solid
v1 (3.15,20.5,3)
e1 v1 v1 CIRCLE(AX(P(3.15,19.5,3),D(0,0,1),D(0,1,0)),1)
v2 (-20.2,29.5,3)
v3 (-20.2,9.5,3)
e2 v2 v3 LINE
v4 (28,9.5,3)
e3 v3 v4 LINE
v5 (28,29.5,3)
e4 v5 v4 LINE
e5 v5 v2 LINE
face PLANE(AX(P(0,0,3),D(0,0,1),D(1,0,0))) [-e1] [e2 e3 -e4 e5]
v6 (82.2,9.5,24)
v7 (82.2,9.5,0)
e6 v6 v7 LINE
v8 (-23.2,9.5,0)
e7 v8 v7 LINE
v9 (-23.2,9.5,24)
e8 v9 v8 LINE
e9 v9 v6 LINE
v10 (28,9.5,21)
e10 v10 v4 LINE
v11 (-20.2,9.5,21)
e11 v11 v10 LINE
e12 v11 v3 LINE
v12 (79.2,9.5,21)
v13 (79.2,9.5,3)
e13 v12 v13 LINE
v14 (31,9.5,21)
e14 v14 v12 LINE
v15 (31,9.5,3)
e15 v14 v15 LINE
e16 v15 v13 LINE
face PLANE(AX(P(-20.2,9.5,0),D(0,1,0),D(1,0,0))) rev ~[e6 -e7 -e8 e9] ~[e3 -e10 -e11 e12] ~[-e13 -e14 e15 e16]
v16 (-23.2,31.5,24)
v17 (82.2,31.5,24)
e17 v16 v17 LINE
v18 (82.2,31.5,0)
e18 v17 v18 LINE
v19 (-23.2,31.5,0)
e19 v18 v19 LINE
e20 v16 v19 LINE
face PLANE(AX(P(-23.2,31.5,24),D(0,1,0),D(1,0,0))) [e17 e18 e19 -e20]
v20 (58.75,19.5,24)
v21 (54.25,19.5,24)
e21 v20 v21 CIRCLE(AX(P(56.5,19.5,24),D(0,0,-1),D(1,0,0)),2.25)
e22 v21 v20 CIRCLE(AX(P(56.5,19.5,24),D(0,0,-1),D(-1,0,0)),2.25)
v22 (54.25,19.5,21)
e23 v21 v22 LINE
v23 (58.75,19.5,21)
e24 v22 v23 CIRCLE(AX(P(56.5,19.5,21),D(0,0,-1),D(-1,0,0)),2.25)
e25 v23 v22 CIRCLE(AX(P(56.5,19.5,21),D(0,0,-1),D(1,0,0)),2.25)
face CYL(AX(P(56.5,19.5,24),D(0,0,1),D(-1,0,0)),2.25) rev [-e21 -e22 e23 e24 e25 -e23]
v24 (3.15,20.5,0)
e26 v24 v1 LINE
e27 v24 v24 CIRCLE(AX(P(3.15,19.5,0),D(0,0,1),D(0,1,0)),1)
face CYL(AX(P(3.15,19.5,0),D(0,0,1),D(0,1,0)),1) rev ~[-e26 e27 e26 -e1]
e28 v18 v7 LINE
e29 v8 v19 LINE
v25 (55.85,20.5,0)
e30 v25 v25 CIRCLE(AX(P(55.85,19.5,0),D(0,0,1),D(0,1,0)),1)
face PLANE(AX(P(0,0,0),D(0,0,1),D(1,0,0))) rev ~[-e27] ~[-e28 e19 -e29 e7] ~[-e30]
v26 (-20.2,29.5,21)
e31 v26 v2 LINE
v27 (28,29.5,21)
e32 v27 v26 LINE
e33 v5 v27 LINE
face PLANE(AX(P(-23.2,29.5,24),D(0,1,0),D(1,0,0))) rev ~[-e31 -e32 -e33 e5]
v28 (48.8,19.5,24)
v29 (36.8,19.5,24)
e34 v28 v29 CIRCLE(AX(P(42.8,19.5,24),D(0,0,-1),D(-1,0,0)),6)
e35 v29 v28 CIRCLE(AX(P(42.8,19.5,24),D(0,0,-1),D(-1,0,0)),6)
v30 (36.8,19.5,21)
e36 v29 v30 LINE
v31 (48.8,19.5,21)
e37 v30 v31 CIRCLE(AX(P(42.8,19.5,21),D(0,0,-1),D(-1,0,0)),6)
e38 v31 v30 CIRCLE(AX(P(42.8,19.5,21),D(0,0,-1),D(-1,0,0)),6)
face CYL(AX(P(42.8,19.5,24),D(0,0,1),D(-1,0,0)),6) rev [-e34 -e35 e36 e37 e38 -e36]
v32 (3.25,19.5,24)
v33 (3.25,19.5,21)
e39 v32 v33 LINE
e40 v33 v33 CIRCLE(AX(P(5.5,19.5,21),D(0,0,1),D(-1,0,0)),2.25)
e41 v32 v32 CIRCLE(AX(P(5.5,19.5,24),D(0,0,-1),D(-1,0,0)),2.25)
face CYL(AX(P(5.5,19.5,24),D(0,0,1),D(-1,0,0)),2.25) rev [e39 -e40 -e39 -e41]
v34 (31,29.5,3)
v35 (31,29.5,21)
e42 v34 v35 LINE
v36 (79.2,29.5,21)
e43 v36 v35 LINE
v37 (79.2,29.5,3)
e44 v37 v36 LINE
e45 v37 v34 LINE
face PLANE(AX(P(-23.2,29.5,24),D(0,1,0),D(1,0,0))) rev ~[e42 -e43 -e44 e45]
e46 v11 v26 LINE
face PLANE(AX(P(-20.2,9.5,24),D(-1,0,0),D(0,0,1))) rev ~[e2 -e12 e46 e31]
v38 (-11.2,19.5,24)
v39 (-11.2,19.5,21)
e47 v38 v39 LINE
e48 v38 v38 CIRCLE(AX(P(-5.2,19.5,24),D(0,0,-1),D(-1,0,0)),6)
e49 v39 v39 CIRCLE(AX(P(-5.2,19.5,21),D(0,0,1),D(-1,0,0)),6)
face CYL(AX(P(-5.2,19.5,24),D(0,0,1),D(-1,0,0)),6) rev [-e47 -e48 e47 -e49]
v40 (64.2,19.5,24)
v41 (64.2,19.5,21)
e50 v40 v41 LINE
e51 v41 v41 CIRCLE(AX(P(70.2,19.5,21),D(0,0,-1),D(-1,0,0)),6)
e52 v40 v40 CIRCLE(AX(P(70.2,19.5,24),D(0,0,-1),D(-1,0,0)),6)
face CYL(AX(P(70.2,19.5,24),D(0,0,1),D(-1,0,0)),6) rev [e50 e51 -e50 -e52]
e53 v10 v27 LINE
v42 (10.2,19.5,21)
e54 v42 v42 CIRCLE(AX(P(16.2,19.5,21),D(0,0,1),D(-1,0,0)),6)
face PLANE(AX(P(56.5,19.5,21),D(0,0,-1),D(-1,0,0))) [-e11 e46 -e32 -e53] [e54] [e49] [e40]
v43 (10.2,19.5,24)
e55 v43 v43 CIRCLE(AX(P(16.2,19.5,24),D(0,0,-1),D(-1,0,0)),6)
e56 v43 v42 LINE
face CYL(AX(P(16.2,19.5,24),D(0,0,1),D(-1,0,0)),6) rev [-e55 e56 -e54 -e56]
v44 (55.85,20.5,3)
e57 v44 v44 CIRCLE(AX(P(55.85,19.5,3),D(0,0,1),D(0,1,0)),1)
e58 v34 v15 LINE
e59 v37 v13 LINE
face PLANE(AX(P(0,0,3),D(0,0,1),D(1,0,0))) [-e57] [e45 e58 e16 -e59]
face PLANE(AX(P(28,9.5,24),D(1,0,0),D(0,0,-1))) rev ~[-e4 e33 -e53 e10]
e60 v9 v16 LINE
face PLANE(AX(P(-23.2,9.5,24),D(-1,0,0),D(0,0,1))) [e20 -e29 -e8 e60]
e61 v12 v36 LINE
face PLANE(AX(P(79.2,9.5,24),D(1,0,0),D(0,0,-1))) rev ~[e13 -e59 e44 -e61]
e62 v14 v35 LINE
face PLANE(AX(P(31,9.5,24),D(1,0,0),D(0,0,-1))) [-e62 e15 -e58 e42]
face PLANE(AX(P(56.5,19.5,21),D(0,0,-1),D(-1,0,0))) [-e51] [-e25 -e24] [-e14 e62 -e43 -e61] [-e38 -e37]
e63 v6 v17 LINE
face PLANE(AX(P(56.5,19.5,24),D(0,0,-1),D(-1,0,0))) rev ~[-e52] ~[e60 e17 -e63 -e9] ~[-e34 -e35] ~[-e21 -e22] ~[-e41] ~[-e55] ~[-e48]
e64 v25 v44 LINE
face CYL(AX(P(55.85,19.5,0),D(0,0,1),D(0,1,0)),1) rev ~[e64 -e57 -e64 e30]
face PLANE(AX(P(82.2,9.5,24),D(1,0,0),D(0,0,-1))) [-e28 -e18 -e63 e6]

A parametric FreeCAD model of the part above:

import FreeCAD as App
import Part
import Sketcher

V = App.Vector

doc = App.newDocument("Part")
body = doc.addObject("PartDesign::Body", "Body")

sketch1 = body.newObject("Sketcher::SketchObject", "Sketch")
sketch1.AttachmentSupport = (doc.getObject("XY_Plane"), [""])
sketch1.MapMode = "FlatFace"
sketch1.AttachmentOffset = App.Placement(V(0, 0, 24), App.Rotation())
sketch1.addGeometry(Part.LineSegment(V(82.2, 9.5, 0), V(-23.2, 9.5, 0)), False)
sketch1.addGeometry(Part.LineSegment(V(-23.2, 9.5, 0), V(-23.2, 29.5, 0)), False)
sketch1.addGeometry(Part.LineSegment(V(-23.2, 29.5, 0), V(82.2, 29.5, 0)), False)
sketch1.addGeometry(Part.LineSegment(V(82.2, 29.5, 0), V(82.2, 9.5, 0)), False)
sketch1.addGeometry(Part.Circle(V(70.2, 19.5, 0), V(0, 0, 1), 6), False)
sketch1.addGeometry(Part.Circle(V(56.5, 19.5, 0), V(0, 0, 1), 2.2), False)
sketch1.addGeometry(Part.Circle(V(42.8, 19.5, 0), V(0, 0, 1), 6), False)
sketch1.addGeometry(Part.Circle(V(16.2, 19.5, 0), V(0, 0, 1), 6), False)
sketch1.addGeometry(Part.Circle(V(5.5, 19.5, 0), V(0, 0, 1), 2.2), False)
sketch1.addGeometry(Part.Circle(V(-5.2, 19.5, 0), V(0, 0, 1), 6), False)
sketch1.addConstraint(Sketcher.Constraint("Coincident", 0, 2, 1, 1))
sketch1.addConstraint(Sketcher.Constraint("Coincident", 1, 2, 2, 1))
sketch1.addConstraint(Sketcher.Constraint("Coincident", 2, 2, 3, 1))
sketch1.addConstraint(Sketcher.Constraint("Coincident", 3, 2, 0, 1))
sketch1.addConstraint(Sketcher.Constraint("Horizontal", 0))
sketch1.addConstraint(Sketcher.Constraint("Vertical", 1))
sketch1.addConstraint(Sketcher.Constraint("Horizontal", 2))
sketch1.addConstraint(Sketcher.Constraint("Vertical", 3))
sketch1.addConstraint(Sketcher.Constraint("Equal", 4, 6))
sketch1.addConstraint(Sketcher.Constraint("Equal", 6, 7))
sketch1.addConstraint(Sketcher.Constraint("Equal", 5, 8))
sketch1.addConstraint(Sketcher.Constraint("Equal", 7, 9))
sketch1.addConstraint(Sketcher.Constraint("Horizontal", 4, 3, 5, 3))
sketch1.addConstraint(Sketcher.Constraint("Horizontal", 5, 3, 6, 3))
sketch1.addConstraint(Sketcher.Constraint("Horizontal", 6, 3, 7, 3))
sketch1.addConstraint(Sketcher.Constraint("Horizontal", 7, 3, 8, 3))
sketch1.addConstraint(Sketcher.Constraint("Horizontal", 8, 3, 9, 3))
sketch1.addConstraint(Sketcher.Constraint("Diameter", 4, 12.0))
sketch1.addConstraint(Sketcher.Constraint("Diameter", 5, 4.5))
sketch1.addConstraint(Sketcher.Constraint("DistanceY", 1, 1, 1, 2, 20.0))
sketch1.addConstraint(Sketcher.Constraint("DistanceY", 0, 2, 9, 3, 10.0))
sketch1.addConstraint(Sketcher.Constraint("DistanceX", 4, 3, 2, 2, 12.0))
sketch1.addConstraint(Sketcher.Constraint("DistanceX", 0, 2, 0, 1, 105.4))
sketch1.addConstraint(Sketcher.Constraint("DistanceX", 7, 3, 4, 3, 54.0))
sketch1.addConstraint(Sketcher.Constraint("DistanceX", 8, 3, 5, 3, 51.0))
sketch1.addConstraint(Sketcher.Constraint("DistanceX", 9, 3, 6, 3, 48.0))
sketch1.addConstraint(Sketcher.Constraint("DistanceX", 0, 2, 9, 3, 18.0))
sketch1.addConstraint(Sketcher.Constraint("DistanceX", -1, 1, 4, 3, 70.2))
sketch1.addConstraint(Sketcher.Constraint("DistanceY", -1, 1, 4, 3, 19.5))
sketch1.addConstraint(Sketcher.Constraint("DistanceX", -1, 1, 5, 3, 56.5))
pad1 = body.newObject("PartDesign::Pad", "Pad")
pad1.Profile = sketch1
pad1.Length = 3
pad1.Reversed = True

sketch2 = body.newObject("Sketcher::SketchObject", "Sketch001")
sketch2.AttachmentSupport = (doc.getObject("YZ_Plane"), [""])
sketch2.MapMode = "FlatFace"
sketch2.AttachmentOffset = App.Placement(V(0, 0, -23.2), App.Rotation())
sketch2.addGeometry(Part.LineSegment(V(10, 0, 0), V(10, 21, 0)), False)
sketch2.addGeometry(Part.LineSegment(V(10, 21, 0), V(30, 21, 0)), False)
sketch2.addGeometry(Part.LineSegment(V(30, 21, 0), V(30, 0, 0)), False)
sketch2.addGeometry(Part.LineSegment(V(30, 0, 0), V(10, 0, 0)), False)
sketch2.addConstraint(Sketcher.Constraint("Coincident", 0, 2, 1, 1))
sketch2.addConstraint(Sketcher.Constraint("Coincident", 1, 2, 2, 1))
sketch2.addConstraint(Sketcher.Constraint("Coincident", 2, 2, 3, 1))
sketch2.addConstraint(Sketcher.Constraint("Coincident", 3, 2, 0, 1))
sketch2.addConstraint(Sketcher.Constraint("Vertical", 0))
sketch2.addConstraint(Sketcher.Constraint("Horizontal", 1))
sketch2.addConstraint(Sketcher.Constraint("Vertical", 2))
sketch2.addConstraint(Sketcher.Constraint("Horizontal", 3))
sketch2.addConstraint(Sketcher.Constraint("PointOnObject", 2, 2, -1))
sketch2.addConstraint(Sketcher.Constraint("DistanceX", 1, 1, 1, 2, 20.0))
sketch2.addConstraint(Sketcher.Constraint("DistanceY", 0, 1, 0, 2, 21.0))
sketch2.addConstraint(Sketcher.Constraint("DistanceX", -1, 1, 0, 2, 9.5))
pad2 = body.newObject("PartDesign::Pad", "Pad001")
pad2.Profile = sketch2
pad2.Length = 3

sketch3 = body.newObject("Sketcher::SketchObject", "Sketch002")
sketch3.AttachmentSupport = (doc.getObject("YZ_Plane"), [""])
sketch3.MapMode = "FlatFace"
sketch3.AttachmentOffset = App.Placement(V(0, 0, 82.2), App.Rotation())
sketch3.addGeometry(Part.LineSegment(V(30, 21, 0), V(10, 21, 0)), False)
sketch3.addGeometry(Part.LineSegment(V(10, 21, 0), V(10, 0, 0)), False)
sketch3.addGeometry(Part.LineSegment(V(10, 0, 0), V(30, 0, 0)), False)
sketch3.addGeometry(Part.LineSegment(V(30, 0, 0), V(30, 21, 0)), False)
sketch3.addConstraint(Sketcher.Constraint("Coincident", 0, 2, 1, 1))
sketch3.addConstraint(Sketcher.Constraint("Coincident", 1, 2, 2, 1))
sketch3.addConstraint(Sketcher.Constraint("Coincident", 2, 2, 3, 1))
sketch3.addConstraint(Sketcher.Constraint("Coincident", 3, 2, 0, 1))
sketch3.addConstraint(Sketcher.Constraint("Horizontal", 0))
sketch3.addConstraint(Sketcher.Constraint("Vertical", 1))
sketch3.addConstraint(Sketcher.Constraint("Horizontal", 2))
sketch3.addConstraint(Sketcher.Constraint("Vertical", 3))
sketch3.addConstraint(Sketcher.Constraint("PointOnObject", 1, 2, -1))
sketch3.addConstraint(Sketcher.Constraint("DistanceX", 0, 2, 0, 1, 20.0))
sketch3.addConstraint(Sketcher.Constraint("DistanceY", 1, 2, 1, 1, 21.0))
sketch3.addConstraint(Sketcher.Constraint("DistanceX", -1, 1, 0, 2, 9.5))
pad3 = body.newObject("PartDesign::Pad", "Pad002")
pad3.Profile = sketch3
pad3.Length = 3
pad3.Reversed = True

sketch4 = body.newObject("Sketcher::SketchObject", "Sketch003")
sketch4.AttachmentSupport = (doc.getObject("YZ_Plane"), [""])
sketch4.MapMode = "FlatFace"
sketch4.AttachmentOffset = App.Placement(V(0, 0, 29.5), App.Rotation())
sketch4.addGeometry(Part.LineSegment(V(30, 21, 0), V(10, 21, 0)), False)
sketch4.addGeometry(Part.LineSegment(V(10, 21, 0), V(10, 0, 0)), False)
sketch4.addGeometry(Part.LineSegment(V(10, 0, 0), V(30, 0, 0)), False)
sketch4.addGeometry(Part.LineSegment(V(30, 0, 0), V(30, 21, 0)), False)
sketch4.addConstraint(Sketcher.Constraint("Coincident", 0, 2, 1, 1))
sketch4.addConstraint(Sketcher.Constraint("Coincident", 1, 2, 2, 1))
sketch4.addConstraint(Sketcher.Constraint("Coincident", 2, 2, 3, 1))
sketch4.addConstraint(Sketcher.Constraint("Coincident", 3, 2, 0, 1))
sketch4.addConstraint(Sketcher.Constraint("Horizontal", 0))
sketch4.addConstraint(Sketcher.Constraint("Vertical", 1))
sketch4.addConstraint(Sketcher.Constraint("Horizontal", 2))
sketch4.addConstraint(Sketcher.Constraint("Vertical", 3))
sketch4.addConstraint(Sketcher.Constraint("PointOnObject", 1, 2, -1))
sketch4.addConstraint(Sketcher.Constraint("DistanceX", 0, 2, 0, 1, 20.0))
sketch4.addConstraint(Sketcher.Constraint("DistanceY", 1, 2, 1, 1, 21.0))
sketch4.addConstraint(Sketcher.Constraint("DistanceX", -1, 1, 0, 2, 9.5))
pad4 = body.newObject("PartDesign::Pad", "Pad003")
pad4.Profile = sketch4
pad4.Length = 3
pad4.Midplane = True

sketch5 = body.newObject("Sketcher::SketchObject", "Sketch004")
sketch5.AttachmentSupport = (doc.getObject("XY_Plane"), [""])
sketch5.MapMode = "FlatFace"
sketch5.addGeometry(Part.LineSegment(V(79, 10, 0), V(79, 30, 0)), False)
sketch5.addGeometry(Part.LineSegment(V(79, 30, 0), V(-20, 30, 0)), False)
sketch5.addGeometry(Part.LineSegment(V(-20, 30, 0), V(-20, 10, 0)), False)
sketch5.addGeometry(Part.LineSegment(V(-20, 10, 0), V(79, 10, 0)), False)
sketch5.addConstraint(Sketcher.Constraint("Coincident", 0, 2, 1, 1))
sketch5.addConstraint(Sketcher.Constraint("Coincident", 1, 2, 2, 1))
sketch5.addConstraint(Sketcher.Constraint("Coincident", 2, 2, 3, 1))
sketch5.addConstraint(Sketcher.Constraint("Coincident", 3, 2, 0, 1))
sketch5.addConstraint(Sketcher.Constraint("Vertical", 0))
sketch5.addConstraint(Sketcher.Constraint("Horizontal", 1))
sketch5.addConstraint(Sketcher.Constraint("Vertical", 2))
sketch5.addConstraint(Sketcher.Constraint("Horizontal", 3))
sketch5.addConstraint(Sketcher.Constraint("DistanceY", 0, 1, 0, 2, 20.0))
sketch5.addConstraint(Sketcher.Constraint("DistanceX", 1, 2, 1, 1, 99.4))
sketch5.addConstraint(Sketcher.Constraint("DistanceX", -1, 1, 0, 2, 79.2))
sketch5.addConstraint(Sketcher.Constraint("DistanceY", -1, 1, 0, 2, 29.5))
pad5 = body.newObject("PartDesign::Pad", "Pad004")
pad5.Profile = sketch5
pad5.Length = 3

sketch6 = body.newObject("Sketcher::SketchObject", "Sketch005")
sketch6.AttachmentSupport = (doc.getObject("XY_Plane"), [""])
sketch6.MapMode = "FlatFace"
sketch6.addGeometry(Part.Circle(V(55.9, 19.5, 0), V(0, 0, 1), 1), False)
sketch6.addGeometry(Part.Circle(V(3.1, 19.5, 0), V(0, 0, 1), 1), False)
sketch6.addConstraint(Sketcher.Constraint("Equal", 0, 1))
sketch6.addConstraint(Sketcher.Constraint("Horizontal", 0, 3, 1, 3))
sketch6.addConstraint(Sketcher.Constraint("Diameter", 0, 2.0))
sketch6.addConstraint(Sketcher.Constraint("DistanceY", -1, 1, 0, 3, 19.5))
sketch6.addConstraint(Sketcher.Constraint("DistanceX", 1, 3, 0, 3, 52.7))
sketch6.addConstraint(Sketcher.Constraint("DistanceX", -1, 1, 0, 3, 55.85))
doc.recompute()
hole = body.newObject("PartDesign::Hole", "Hole")
hole.Profile = sketch6
hole.ThreadType = "None"
hole.Diameter = 2
hole.DepthType = "Dimension"
hole.Depth = 8
hole.DrillPoint = "Angled"
hole.DrillPointAngle = 118
hole.Reversed = True

sketch7 = body.newObject("Sketcher::SketchObject", "Sketch006")
sketch7.AttachmentSupport = (doc.getObject("XZ_Plane"), [""])
sketch7.MapMode = "FlatFace"
sketch7.AttachmentOffset = App.Placement(V(0, 0, -29.5), App.Rotation())
sketch7.addGeometry(Part.LineSegment(V(82, 24, 0), V(82, 0, 0)), False)
sketch7.addGeometry(Part.LineSegment(V(82, 0, 0), V(-23, 0, 0)), False)
sketch7.addGeometry(Part.LineSegment(V(-23, 0, 0), V(-23, 24, 0)), False)
sketch7.addGeometry(Part.LineSegment(V(-23, 24, 0), V(82, 24, 0)), False)
sketch7.addConstraint(Sketcher.Constraint("Coincident", 0, 2, 1, 1))
sketch7.addConstraint(Sketcher.Constraint("Coincident", 1, 2, 2, 1))
sketch7.addConstraint(Sketcher.Constraint("Coincident", 2, 2, 3, 1))
sketch7.addConstraint(Sketcher.Constraint("Coincident", 3, 2, 0, 1))
sketch7.addConstraint(Sketcher.Constraint("Vertical", 0))
sketch7.addConstraint(Sketcher.Constraint("Horizontal", 1))
sketch7.addConstraint(Sketcher.Constraint("Vertical", 2))
sketch7.addConstraint(Sketcher.Constraint("Horizontal", 3))
sketch7.addConstraint(Sketcher.Constraint("PointOnObject", 0, 2, -1))
sketch7.addConstraint(Sketcher.Constraint("DistanceY", 0, 2, 0, 1, 24.0))
sketch7.addConstraint(Sketcher.Constraint("DistanceX", 1, 2, 1, 1, 105.4))
sketch7.addConstraint(Sketcher.Constraint("DistanceX", -1, 1, 0, 2, 82.2))
pad6 = body.newObject("PartDesign::Pad", "Pad005")
pad6.Profile = sketch7
pad6.Length = 2
pad6.Reversed = True

doc.recompute()
